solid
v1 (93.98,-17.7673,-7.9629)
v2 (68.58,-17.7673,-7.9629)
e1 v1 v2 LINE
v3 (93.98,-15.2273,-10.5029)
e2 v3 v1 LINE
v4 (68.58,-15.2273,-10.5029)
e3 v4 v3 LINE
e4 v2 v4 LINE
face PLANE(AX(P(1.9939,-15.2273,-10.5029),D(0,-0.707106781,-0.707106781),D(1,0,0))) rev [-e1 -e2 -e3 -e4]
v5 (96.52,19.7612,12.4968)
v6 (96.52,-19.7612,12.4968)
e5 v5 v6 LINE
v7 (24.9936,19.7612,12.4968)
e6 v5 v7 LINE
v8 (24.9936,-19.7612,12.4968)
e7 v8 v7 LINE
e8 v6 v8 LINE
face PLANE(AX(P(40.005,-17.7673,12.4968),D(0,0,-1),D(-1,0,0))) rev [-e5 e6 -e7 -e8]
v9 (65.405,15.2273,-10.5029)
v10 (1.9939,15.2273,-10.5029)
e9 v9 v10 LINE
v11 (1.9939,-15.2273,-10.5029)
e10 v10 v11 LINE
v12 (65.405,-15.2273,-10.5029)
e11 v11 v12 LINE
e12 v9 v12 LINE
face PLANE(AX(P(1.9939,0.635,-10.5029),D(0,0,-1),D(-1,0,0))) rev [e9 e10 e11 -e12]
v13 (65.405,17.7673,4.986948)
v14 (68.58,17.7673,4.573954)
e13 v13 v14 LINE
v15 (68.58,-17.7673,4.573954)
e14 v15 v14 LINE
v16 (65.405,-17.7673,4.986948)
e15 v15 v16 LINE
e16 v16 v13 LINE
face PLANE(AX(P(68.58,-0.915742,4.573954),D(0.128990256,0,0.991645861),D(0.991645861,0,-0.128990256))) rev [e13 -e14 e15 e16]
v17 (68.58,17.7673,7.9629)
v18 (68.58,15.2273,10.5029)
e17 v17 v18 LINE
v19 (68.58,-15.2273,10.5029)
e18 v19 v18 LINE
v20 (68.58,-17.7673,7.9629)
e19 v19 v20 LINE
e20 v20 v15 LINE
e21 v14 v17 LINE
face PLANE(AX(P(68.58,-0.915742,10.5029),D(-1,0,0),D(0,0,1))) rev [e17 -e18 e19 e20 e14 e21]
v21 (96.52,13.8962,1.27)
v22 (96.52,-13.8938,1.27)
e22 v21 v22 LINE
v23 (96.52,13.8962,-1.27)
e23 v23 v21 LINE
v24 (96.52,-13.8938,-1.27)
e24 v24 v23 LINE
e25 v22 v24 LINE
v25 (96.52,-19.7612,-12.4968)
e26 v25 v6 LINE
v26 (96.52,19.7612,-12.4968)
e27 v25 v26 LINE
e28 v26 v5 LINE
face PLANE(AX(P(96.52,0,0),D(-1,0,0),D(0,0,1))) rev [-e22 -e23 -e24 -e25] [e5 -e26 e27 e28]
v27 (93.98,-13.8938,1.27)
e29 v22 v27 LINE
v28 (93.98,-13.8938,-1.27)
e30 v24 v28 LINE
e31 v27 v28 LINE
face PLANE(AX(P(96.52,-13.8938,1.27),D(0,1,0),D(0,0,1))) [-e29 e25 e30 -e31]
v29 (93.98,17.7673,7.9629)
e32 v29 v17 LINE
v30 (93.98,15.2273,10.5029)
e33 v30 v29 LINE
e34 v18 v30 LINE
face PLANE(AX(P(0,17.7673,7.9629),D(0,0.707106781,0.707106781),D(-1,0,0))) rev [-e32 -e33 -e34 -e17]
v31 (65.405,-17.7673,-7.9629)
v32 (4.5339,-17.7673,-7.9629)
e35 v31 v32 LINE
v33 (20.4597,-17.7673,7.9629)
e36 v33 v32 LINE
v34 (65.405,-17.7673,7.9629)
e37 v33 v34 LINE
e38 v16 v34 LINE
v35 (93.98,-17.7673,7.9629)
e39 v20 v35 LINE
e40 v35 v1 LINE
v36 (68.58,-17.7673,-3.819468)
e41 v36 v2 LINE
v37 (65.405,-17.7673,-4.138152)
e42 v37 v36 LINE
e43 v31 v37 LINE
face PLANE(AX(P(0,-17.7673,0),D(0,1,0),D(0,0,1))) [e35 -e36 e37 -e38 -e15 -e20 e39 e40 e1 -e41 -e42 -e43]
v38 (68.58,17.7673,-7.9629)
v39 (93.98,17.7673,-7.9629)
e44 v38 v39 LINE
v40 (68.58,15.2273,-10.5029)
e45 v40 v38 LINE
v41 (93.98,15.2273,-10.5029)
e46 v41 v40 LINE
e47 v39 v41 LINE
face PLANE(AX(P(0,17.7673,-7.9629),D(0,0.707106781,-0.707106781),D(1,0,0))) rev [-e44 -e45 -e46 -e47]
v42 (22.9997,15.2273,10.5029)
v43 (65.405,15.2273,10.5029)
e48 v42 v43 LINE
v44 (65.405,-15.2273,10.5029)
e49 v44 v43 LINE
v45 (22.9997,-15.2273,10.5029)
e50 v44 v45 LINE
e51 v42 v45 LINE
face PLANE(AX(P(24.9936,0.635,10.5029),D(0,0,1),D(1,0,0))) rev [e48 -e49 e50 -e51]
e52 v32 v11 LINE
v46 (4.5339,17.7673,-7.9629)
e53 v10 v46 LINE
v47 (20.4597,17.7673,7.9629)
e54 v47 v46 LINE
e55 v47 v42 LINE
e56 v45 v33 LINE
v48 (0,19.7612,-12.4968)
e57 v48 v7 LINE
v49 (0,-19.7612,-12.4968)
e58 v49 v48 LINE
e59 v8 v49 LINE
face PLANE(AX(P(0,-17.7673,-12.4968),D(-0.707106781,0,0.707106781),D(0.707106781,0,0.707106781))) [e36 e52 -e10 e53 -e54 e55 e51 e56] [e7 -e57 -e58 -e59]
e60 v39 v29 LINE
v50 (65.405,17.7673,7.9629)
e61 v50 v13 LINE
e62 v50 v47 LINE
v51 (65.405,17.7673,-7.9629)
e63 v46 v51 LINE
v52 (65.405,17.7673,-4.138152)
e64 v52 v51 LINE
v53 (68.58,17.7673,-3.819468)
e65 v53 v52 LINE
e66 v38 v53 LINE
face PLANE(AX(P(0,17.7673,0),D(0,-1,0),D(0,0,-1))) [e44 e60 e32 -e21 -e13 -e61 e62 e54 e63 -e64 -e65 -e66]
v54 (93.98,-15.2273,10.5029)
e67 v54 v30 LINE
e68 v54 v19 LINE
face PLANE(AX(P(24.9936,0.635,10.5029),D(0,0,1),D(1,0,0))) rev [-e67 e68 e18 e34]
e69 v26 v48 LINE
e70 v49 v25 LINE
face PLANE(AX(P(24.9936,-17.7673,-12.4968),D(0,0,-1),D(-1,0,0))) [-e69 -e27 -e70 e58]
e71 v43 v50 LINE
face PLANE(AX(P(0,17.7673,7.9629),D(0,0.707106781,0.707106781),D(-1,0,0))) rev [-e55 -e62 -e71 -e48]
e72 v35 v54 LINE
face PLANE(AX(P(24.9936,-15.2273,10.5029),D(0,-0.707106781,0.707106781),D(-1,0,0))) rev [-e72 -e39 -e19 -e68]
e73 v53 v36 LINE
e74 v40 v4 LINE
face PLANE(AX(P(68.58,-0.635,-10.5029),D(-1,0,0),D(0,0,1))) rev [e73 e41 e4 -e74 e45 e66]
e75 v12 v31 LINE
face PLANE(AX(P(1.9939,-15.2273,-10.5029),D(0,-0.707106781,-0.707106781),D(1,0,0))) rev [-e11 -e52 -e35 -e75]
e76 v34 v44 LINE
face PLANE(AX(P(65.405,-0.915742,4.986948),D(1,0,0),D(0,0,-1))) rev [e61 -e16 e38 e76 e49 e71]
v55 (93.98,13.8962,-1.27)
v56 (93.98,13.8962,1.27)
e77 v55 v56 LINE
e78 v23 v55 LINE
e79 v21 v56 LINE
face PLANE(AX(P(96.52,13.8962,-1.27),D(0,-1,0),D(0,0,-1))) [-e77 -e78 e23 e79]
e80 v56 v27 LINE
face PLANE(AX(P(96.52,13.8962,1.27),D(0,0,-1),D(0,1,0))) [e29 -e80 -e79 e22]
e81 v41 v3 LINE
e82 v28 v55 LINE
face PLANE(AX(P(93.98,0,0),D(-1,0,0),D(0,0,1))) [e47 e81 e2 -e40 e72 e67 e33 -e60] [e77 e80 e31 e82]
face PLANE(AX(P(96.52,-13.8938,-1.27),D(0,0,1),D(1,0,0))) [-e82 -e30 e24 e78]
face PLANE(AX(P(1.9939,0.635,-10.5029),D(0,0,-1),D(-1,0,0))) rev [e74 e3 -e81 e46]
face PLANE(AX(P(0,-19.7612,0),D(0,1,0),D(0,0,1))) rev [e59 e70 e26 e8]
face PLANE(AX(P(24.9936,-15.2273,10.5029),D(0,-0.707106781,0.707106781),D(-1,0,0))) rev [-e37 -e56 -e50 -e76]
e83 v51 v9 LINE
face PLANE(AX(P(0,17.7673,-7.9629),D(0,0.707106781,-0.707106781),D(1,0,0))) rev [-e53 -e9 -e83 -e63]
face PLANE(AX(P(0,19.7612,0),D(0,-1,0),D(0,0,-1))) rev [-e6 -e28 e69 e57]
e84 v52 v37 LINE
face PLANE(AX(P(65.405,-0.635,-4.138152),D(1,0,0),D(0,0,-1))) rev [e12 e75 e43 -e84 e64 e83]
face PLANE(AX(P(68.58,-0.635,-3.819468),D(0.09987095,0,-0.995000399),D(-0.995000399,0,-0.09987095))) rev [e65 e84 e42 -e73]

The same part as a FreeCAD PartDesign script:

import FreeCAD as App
import Part
import Sketcher

V = App.Vector
Q = App.Units.Quantity


def edges_at(feature, points):
    """Names of the edges that pass closest to the given points."""
    edges = feature.Shape.Edges
    near = lambda p: min(range(len(edges)), key=lambda i: edges[i].distToShape(Part.Vertex(*p))[0])
    return sorted({f"Edge{near(p) + 1}" for p in points})


def add_polygon(sketch, points):
    """Adds a closed chain of lines whose ends are joined by coincident constraints."""
    first, n = sketch.GeometryCount, len(points)
    for a, b in zip(points, points[1:] + points[:1]):
        sketch.addGeometry(Part.LineSegment(App.Vector(*a, 0), App.Vector(*b, 0)), False)
    for i in range(n):
        sketch.addConstraint(Sketcher.Constraint("Coincident", first + i, 2, first + (i + 1) % n, 1))

doc = App.newDocument("Part")
body = doc.addObject("PartDesign::Body", "Body")

sketch1 = body.newObject("Sketcher::SketchObject", "Sketch")
sketch1.AttachmentSupport = (doc.getObject("XZ_Plane"), [""])
sketch1.MapMode = "FlatFace"
sketch1.AttachmentOffset = App.Placement(V(0, 0, -0.778 * 25.4), App.Rotation())
add_polygon(sketch1, [(0, -12), (25, 12), (25, -12)])
sketch1.addConstraint([
    Sketcher.Constraint("Vertical", 1),
    Sketcher.Constraint("Horizontal", 2),
    Sketcher.Constraint("PointOnObject", 2, 2, -2),
    Sketcher.Constraint("Equal", 2, 1),
    Sketcher.Constraint("DistanceX", 2, 2, 2, 1, Q("0.984 in")),
    Sketcher.Constraint("DistanceY", -1, 1, 0, 2, Q("0.492 in")),
])
pad1 = body.newObject("PartDesign::Pad", "Pad")
pad1.Profile = sketch1
pad1.Length = Q("1.4775 in")

sketch2 = body.newObject("Sketcher::SketchObject", "Sketch001")
sketch2.AttachmentSupport = (doc.getObject("XZ_Plane"), [""])
sketch2.MapMode = "FlatFace"
sketch2.AttachmentOffset = App.Placement(V(0, 0, 0.6995 * 25.4), App.Rotation())
add_polygon(sketch2, [(25, -10.5), (25, 10.5), (23, 10.5), (2, -10.5)])
sketch2.addConstraint([
    Sketcher.Constraint("Vertical", 0),
    Sketcher.Constraint("Horizontal", 1),
    Sketcher.Constraint("Horizontal", 3),
    Sketcher.Constraint("Angle", 2, Q("-135 deg")),
    Sketcher.Constraint("DistanceY", 0, 1, 0, 2, Q("0.827 in")),
    Sketcher.Constraint("DistanceX", 1, 2, 1, 1, Q("0.0785 in")),
    Sketcher.Constraint("DistanceX", -1, 1, 0, 2, Q("0.984 in")),
    Sketcher.Constraint("DistanceY", -1, 1, 0, 2, Q("0.4135 in")),
])
pocket1 = body.newObject("PartDesign::Pocket", "Pocket")
pocket1.Profile = sketch2
pocket1.Length = Q("0.7245 in")

sketch3 = body.newObject("Sketcher::SketchObject", "Sketch002")
sketch3.AttachmentSupport = (doc.getObject("YZ_Plane"), [""])
sketch3.MapMode = "FlatFace"
sketch3.AttachmentOffset = App.Placement(V(0, 0, 0.984 * 25.4), App.Rotation())
add_polygon(sketch3, [(0.6, -10.5), (-17.8, -10.5), (-17.8, -12.5), (19.8, -12.5), (19.8, 12.5), (-17.8, 12.5), (-17.8, 10.5), (0.6, 10.5)])
sketch3.addConstraint([
    Sketcher.Constraint("Horizontal", 0),
    Sketcher.Constraint("Vertical", 1),
    Sketcher.Constraint("Horizontal", 2),
    Sketcher.Constraint("Vertical", 3),
    Sketcher.Constraint("Horizontal", 4),
    Sketcher.Constraint("Vertical", 5),
    Sketcher.Constraint("Horizontal", 6),
    Sketcher.Constraint("Vertical", 7),
    Sketcher.Constraint("Symmetric", 1, 2, 4, 2, -1),
    Sketcher.Constraint("Equal", 1, 5),
    Sketcher.Constraint("DistanceY", 3, 1, 3, 2, Q("0.984 in")),
    Sketcher.Constraint("DistanceY", 7, 2, 7, 1, Q("0.827 in")),
    Sketcher.Constraint("DistanceX", 0, 2, 0, 1, Q("0.7245 in")),
    Sketcher.Constraint("DistanceX", 2, 1, 2, 2, Q("1.4775 in")),
    Sketcher.Constraint("DistanceX", -1, 1, 2, 2, Q("0.778 in")),
])
pad2 = body.newObject("PartDesign::Pad", "Pad001")
pad2.Profile = sketch3
pad2.Length = Q("0.591 in")

sketch4 = body.newObject("Sketcher::SketchObject", "Sketch003")
sketch4.AttachmentSupport = (doc.getObject("YZ_Plane"), [""])
sketch4.MapMode = "FlatFace"
sketch4.AttachmentOffset = App.Placement(V(0, 0, 1.575 * 25.4), App.Rotation())
add_polygon(sketch4, [(1.5, 10.5), (1.5, -10.5), (-17.8, -10.5), (-17.8, -12.5), (19.8, -12.5), (19.8, 12.5), (-17.8, 12.5), (-17.8, 10.5)])
sketch4.addConstraint([
    Sketcher.Constraint("Vertical", 0),
    Sketcher.Constraint("Horizontal", 1),
    Sketcher.Constraint("Vertical", 2),
    Sketcher.Constraint("Horizontal", 3),
    Sketcher.Constraint("Vertical", 4),
    Sketcher.Constraint("Horizontal", 5),
    Sketcher.Constraint("Vertical", 6),
    Sketcher.Constraint("Horizontal", 7),
    Sketcher.Constraint("Symmetric", 2, 2, 5, 2, -1),
    Sketcher.Constraint("Equal", 2, 6),
    Sketcher.Constraint("DistanceY", 0, 2, 0, 1, Q("0.827 in")),
    Sketcher.Constraint("DistanceY", 4, 1, 4, 2, Q("0.984 in")),
    Sketcher.Constraint("DistanceX", 3, 1, 3, 2, Q("1.4775 in")),
    Sketcher.Constraint("DistanceX", -1, 1, 3, 2, Q("0.778 in")),
    Sketcher.Constraint("DistanceX", 1, 2, 1, 1, 19.237287),
])
pad3 = body.newObject("PartDesign::Pad", "Pad002")
pad3.Profile = sketch4
pad3.Length = Q("2.125 in")

sketch5 = body.newObject("Sketcher::SketchObject", "Sketch004")
sketch5.AttachmentSupport = (doc.getObject("XZ_Plane"), [""])
sketch5.MapMode = "FlatFace"
sketch5.AttachmentOffset = App.Placement(V(0, 0, -0.025 * 25.4), App.Rotation())
add_polygon(sketch5, [(94, -11), (94, 11), (23, 11), (2, -11)])
sketch5.addConstraint([
    Sketcher.Constraint("Vertical", 0),
    Sketcher.Constraint("Horizontal", 1),
    Sketcher.Constraint("Horizontal", 3),
    Sketcher.Constraint("Angle", 2, Q("-135 deg")),
    Sketcher.Constraint("DistanceX", -1, 1, 0, 2, Q("3.7 in")),
    Sketcher.Constraint("DistanceY", 0, 1, 0, 2, Q("0.827 in")),
    Sketcher.Constraint("DistanceX", 1, 2, 1, 1, Q("2.7945 in")),
    Sketcher.Constraint("DistanceY", -1, 1, 0, 2, Q("0.4135 in")),
])
pocket2 = body.newObject("PartDesign::Pocket", "Pocket001")
pocket2.Profile = sketch5
pocket2.Length = Q("0.6745 in")

sketch6 = body.newObject("Sketcher::SketchObject", "Sketch005")
sketch6.AttachmentSupport = (doc.getObject("YZ_Plane"), [""])
sketch6.MapMode = "FlatFace"
sketch6.AttachmentOffset = App.Placement(V(0, 0, 3.7 * 25.4), App.Rotation())
add_polygon(sketch6, [(19.8, 12.5), (-17.8, 12.5), (-17.8, -12.5), (19.8, -12.5)])
add_polygon(sketch6, [(-13.9, -1.3), (-13.9, 1.3), (13.9, 1.3), (13.9, -1.3)])
sketch6.addConstraint([
    Sketcher.Constraint("Horizontal", 0),
    Sketcher.Constraint("Vertical", 1),
    Sketcher.Constraint("Horizontal", 2),
    Sketcher.Constraint("Vertical", 3),
    Sketcher.Constraint("Vertical", 4),
    Sketcher.Constraint("Horizontal", 5),
    Sketcher.Constraint("Vertical", 6),
    Sketcher.Constraint("Horizontal", 7),
    Sketcher.Constraint("DistanceY", 4, 1, 4, 2, Q("0.1 in")),
    Sketcher.Constraint("DistanceY", 1, 2, 1, 1, Q("0.984 in")),
    Sketcher.Constraint("DistanceY", -1, 1, 4, 2, Q("0.05 in")),
    Sketcher.Constraint("DistanceX", 0, 2, 0, 1, Q("1.4775 in")),
    Sketcher.Constraint("DistanceY", -1, 1, 0, 2, Q("0.492 in")),
    Sketcher.Constraint("DistanceX", -1, 1, 2, 2, Q("0.778 in")),
    Sketcher.Constraint("DistanceX", 4, 2, -1, 1, Q("0.547 in")),
    Sketcher.Constraint("DistanceX", 5, 1, 5, 2, 27.79),
])
pad4 = body.newObject("PartDesign::Pad", "Pad003")
pad4.Profile = sketch6
pad4.Length = Q("0.1 in")

sketch7 = body.newObject("Sketcher::SketchObject", "Sketch006")
sketch7.AttachmentSupport = (doc.getObject("XZ_Plane"), [""])
sketch7.MapMode = "FlatFace"
sketch7.AttachmentOffset = App.Placement(V(0, 0, 0.6995 * 25.4), App.Rotation())
add_polygon(sketch7, [(97, 12), (25, 12), (0, -12), (97, -12)])
sketch7.addConstraint([
    Sketcher.Constraint("Horizontal", 0),
    Sketcher.Constraint("Horizontal", 2),
    Sketcher.Constraint("Vertical", 3),
    Sketcher.Constraint("PointOnObject", 1, 2, -2),
    Sketcher.Constraint("DistanceX", 2, 1, 2, 2, Q("3.8 in")),
    Sketcher.Constraint("Angle", 1, Q("-135 deg")),
    Sketcher.Constraint("DistanceX", 0, 2, 0, 1, Q("2.816 in")),
    Sketcher.Constraint("DistanceY", -1, 1, 0, 2, Q("0.492 in")),
])
pad5 = body.newObject("PartDesign::Pad", "Pad004")
pad5.Profile = sketch7
pad5.Length = Q("0.0785 in")

sketch8 = body.newObject("Sketcher::SketchObject", "Sketch007")
sketch8.AttachmentSupport = (doc.getObject("XZ_Plane"), [""])
sketch8.MapMode = "FlatFace"
sketch8.AttachmentOffset = App.Placement(V(0, 0, 0.6995 * 25.4), App.Rotation())
add_polygon(sketch8, [(65.4, -10.5), (65.4, -4.1), (68.6, -3.8), (68.6, -10.5)])
sketch8.addConstraint([
    Sketcher.Constraint("Vertical", 0),
    Sketcher.Constraint("Vertical", 2),
    Sketcher.Constraint("Horizontal", 3),
    Sketcher.Constraint("DistanceX", -1, 1, 1, 2, Q("2.7 in")),
    Sketcher.Constraint("DistanceX", 3, 2, 3, 1, Q("0.125 in")),
    Sketcher.Constraint("DistanceY", 2, 2, -1, 1, Q("0.4135 in")),
    Sketcher.Constraint("DistanceY", 2, 2, 2, 1, 6.683432),
    Sketcher.Constraint("DistanceY", 0, 1, 0, 2, 6.364748),
])
pad6 = body.newObject("PartDesign::Pad", "Pad005")
pad6.Profile = sketch8
pad6.Length = Q("0.6745 in")
pad6.Reversed = True

sketch9 = body.newObject("Sketcher::SketchObject", "Sketch008")
sketch9.AttachmentSupport = (doc.getObject("XZ_Plane"), [""])
sketch9.MapMode = "FlatFace"
sketch9.AttachmentOffset = App.Placement(V(0, 0, -0.6995 * 25.4), App.Rotation())
add_polygon(sketch9, [(68.6, 10.5), (65.4, 10.5), (65.4, 5), (68.6, 4.6)])
sketch9.addConstraint([
    Sketcher.Constraint("Horizontal", 0),
    Sketcher.Constraint("Vertical", 1),
    Sketcher.Constraint("Vertical", 3),
    Sketcher.Constraint("DistanceX", -1, 1, 2, 2, Q("2.7 in")),
    Sketcher.Constraint("DistanceX", 0, 2, 0, 1, Q("0.125 in")),
    Sketcher.Constraint("DistanceY", -1, 1, 0, 2, Q("0.4135 in")),
    Sketcher.Constraint("DistanceY", 1, 2, 1, 1, 5.515952),
    Sketcher.Constraint("DistanceY", 3, 1, 3, 2, 5.928946),
])
pad7 = body.newObject("PartDesign::Pad", "Pad006")
pad7.Profile = sketch9
pad7.Length = 18.683042

sketch10 = body.newObject("Sketcher::SketchObject", "Sketch009")
sketch10.AttachmentSupport = (doc.getObject("XZ_Plane"), [""])
sketch10.MapMode = "FlatFace"
sketch10.AttachmentOffset = App.Placement(V(0, 0, -0.6995 * 25.4), App.Rotation())
add_polygon(sketch10, [(68.6, -10.5), (68.6, -3.8), (65.4, -4.1), (65.4, -10.5)])
sketch10.addConstraint([
    Sketcher.Constraint("Vertical", 0),
    Sketcher.Constraint("Vertical", 2),
    Sketcher.Constraint("Horizontal", 3),
    Sketcher.Constraint("DistanceX", -1, 1, 0, 2, Q("2.7 in")),
    Sketcher.Constraint("DistanceX", 3, 1, 3, 2, Q("0.125 in")),
    Sketcher.Constraint("DistanceY", 2, 2, -1, 1, Q("0.4135 in")),
    Sketcher.Constraint("DistanceY", 0, 1, 0, 2, 6.683432),
    Sketcher.Constraint("DistanceY", 2, 2, 2, 1, 6.364748),
])
pad8 = body.newObject("PartDesign::Pad", "Pad007")
pad8.Profile = sketch10
pad8.Length = 19.015986

sketch11 = body.newObject("Sketcher::SketchObject", "Sketch010")
sketch11.AttachmentSupport = (doc.getObject("XZ_Plane"), [""])
sketch11.MapMode = "FlatFace"
sketch11.AttachmentOffset = App.Placement(V(0, 0, 0.6995 * 25.4), App.Rotation())
add_polygon(sketch11, [(65.4, 10.5), (68.6, 10.5), (68.6, 4.6), (65.4, 5)])
sketch11.addConstraint([
    Sketcher.Constraint("Horizontal", 0),
    Sketcher.Constraint("Vertical", 1),
    Sketcher.Constraint("Vertical", 3),
    Sketcher.Constraint("DistanceX", -1, 1, 0, 2, Q("2.7 in")),
    Sketcher.Constraint("DistanceX", 0, 1, 0, 2, Q("0.125 in")),
    Sketcher.Constraint("DistanceY", -1, 1, 0, 2, Q("0.4135 in")),
    Sketcher.Constraint("DistanceY", 3, 1, 3, 2, 5.515952),
    Sketcher.Constraint("DistanceY", 1, 2, 1, 1, 5.928946),
])
pad9 = body.newObject("PartDesign::Pad", "Pad008")
pad9.Profile = sketch11
pad9.Length = Q("0.6745 in")
pad9.Reversed = True
doc.recompute()

chamfer = body.newObject("PartDesign::Chamfer", "Chamfer")
chamfer.Base = (pad9, edges_at(pad9, [
    (81.28, -17.767, -10.503),
    (44.202, 17.767, 10.503),
    (81.28, 17.767, -10.503),
    (33.699, -17.767, -10.503),
    (81.28, -17.767, 10.503),
    (44.202, -17.767, 10.503),
    (33.699, 17.767, -10.503),
    (81.28, 17.767, 10.503),
]))
chamfer.Size = Q("0.1 in")

doc.recompute()
